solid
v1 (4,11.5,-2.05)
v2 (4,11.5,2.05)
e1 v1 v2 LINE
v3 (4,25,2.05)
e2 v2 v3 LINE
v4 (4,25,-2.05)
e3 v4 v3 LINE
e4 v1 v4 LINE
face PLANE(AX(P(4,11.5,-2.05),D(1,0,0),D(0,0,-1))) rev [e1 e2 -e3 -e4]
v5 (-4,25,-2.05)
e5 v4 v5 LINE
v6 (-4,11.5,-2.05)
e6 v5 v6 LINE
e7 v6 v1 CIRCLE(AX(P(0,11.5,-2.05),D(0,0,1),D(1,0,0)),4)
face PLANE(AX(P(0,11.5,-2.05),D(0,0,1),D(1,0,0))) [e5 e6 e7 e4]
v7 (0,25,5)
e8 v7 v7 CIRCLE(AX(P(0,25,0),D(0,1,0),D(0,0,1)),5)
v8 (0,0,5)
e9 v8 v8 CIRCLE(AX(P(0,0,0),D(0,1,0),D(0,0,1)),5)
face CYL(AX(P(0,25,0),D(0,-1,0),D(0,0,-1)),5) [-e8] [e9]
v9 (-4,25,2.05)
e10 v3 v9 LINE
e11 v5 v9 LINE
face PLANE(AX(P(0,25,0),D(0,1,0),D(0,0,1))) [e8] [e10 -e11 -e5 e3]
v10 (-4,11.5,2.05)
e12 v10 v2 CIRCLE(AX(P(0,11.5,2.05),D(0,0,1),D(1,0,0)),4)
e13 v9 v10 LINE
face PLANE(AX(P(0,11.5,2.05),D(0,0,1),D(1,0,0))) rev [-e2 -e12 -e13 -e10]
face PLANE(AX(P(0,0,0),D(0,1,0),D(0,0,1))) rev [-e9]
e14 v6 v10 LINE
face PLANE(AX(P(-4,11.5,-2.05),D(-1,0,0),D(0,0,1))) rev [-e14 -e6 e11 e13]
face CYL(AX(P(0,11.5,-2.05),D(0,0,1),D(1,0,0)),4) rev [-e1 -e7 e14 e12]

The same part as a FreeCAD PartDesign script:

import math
import FreeCAD as App
import Part
import Sketcher
from FreeCAD import Vector

doc = App.newDocument("Part")
body = doc.addObject("PartDesign::Body", "Body")

# Sketch on XZ plane
sketch1 = doc.addObject("Sketcher::SketchObject", "Sketch")
body.addObject(sketch1)
sketch1.AttachmentSupport = (doc.XZ_Plane, [""])
sketch1.MapMode = "FlatFace"
sketch1.addGeometry(Part.Circle(Vector(0, 0, 0), Vector(0, 0, 1), 5), False)
sketch1.addConstraint([
    Sketcher.Constraint("Coincident", 0, 3, -1, 1),
    Sketcher.Constraint("Diameter", 0, 10.0),
])
pad1 = doc.addObject("PartDesign::Pad", "Pad")
body.addObject(pad1)
pad1.Profile = sketch1
pad1.Length = 25
pad1.Reversed = True

# Sketch on XY plane
sketch2 = doc.addObject("Sketcher::SketchObject", "Sketch001")
body.addObject(sketch2)
sketch2.AttachmentSupport = (doc.XY_Plane, [""])
sketch2.MapMode = "FlatFace"
sketch2.addGeometry([
    Part.LineSegment(Vector(-4, 25, 0), Vector(-4, 11.5, 0)),
    Part.ArcOfCircle(Part.Circle(Vector(0, 11.5, 0), Vector(0, 0, 1), 4), math.radians(180), math.radians(360)),
    Part.LineSegment(Vector(4, 11.5, 0), Vector(4, 25, 0)),
    Part.LineSegment(Vector(4, 25, 0), Vector(-4, 25, 0)),
], False)
sketch2.addConstraint([
    Sketcher.Constraint("Tangent", 0, 2, 1, 1),
    Sketcher.Constraint("Tangent", 1, 2, 2, 1),
    Sketcher.Constraint("Coincident", 2, 2, 3, 1),
    Sketcher.Constraint("Coincident", 3, 2, 0, 1),
    Sketcher.Constraint("Vertical", 0),
    Sketcher.Constraint("Vertical", 2),
    Sketcher.Constraint("Horizontal", 3),
    Sketcher.Constraint("PointOnObject", 1, 3, -2),
    Sketcher.Constraint("Radius", 1, 4.0),
    Sketcher.Constraint("DistanceY", 0, 2, 0, 1, 13.5),
    Sketcher.Constraint("DistanceY", -1, 1, 2, 2, 25.0),
])
pocket1 = doc.addObject("PartDesign::Pocket", "Pocket")
body.addObject(pocket1)
pocket1.Profile = sketch2
pocket1.Length = 4.1
pocket1.Midplane = True

doc.recompute()
